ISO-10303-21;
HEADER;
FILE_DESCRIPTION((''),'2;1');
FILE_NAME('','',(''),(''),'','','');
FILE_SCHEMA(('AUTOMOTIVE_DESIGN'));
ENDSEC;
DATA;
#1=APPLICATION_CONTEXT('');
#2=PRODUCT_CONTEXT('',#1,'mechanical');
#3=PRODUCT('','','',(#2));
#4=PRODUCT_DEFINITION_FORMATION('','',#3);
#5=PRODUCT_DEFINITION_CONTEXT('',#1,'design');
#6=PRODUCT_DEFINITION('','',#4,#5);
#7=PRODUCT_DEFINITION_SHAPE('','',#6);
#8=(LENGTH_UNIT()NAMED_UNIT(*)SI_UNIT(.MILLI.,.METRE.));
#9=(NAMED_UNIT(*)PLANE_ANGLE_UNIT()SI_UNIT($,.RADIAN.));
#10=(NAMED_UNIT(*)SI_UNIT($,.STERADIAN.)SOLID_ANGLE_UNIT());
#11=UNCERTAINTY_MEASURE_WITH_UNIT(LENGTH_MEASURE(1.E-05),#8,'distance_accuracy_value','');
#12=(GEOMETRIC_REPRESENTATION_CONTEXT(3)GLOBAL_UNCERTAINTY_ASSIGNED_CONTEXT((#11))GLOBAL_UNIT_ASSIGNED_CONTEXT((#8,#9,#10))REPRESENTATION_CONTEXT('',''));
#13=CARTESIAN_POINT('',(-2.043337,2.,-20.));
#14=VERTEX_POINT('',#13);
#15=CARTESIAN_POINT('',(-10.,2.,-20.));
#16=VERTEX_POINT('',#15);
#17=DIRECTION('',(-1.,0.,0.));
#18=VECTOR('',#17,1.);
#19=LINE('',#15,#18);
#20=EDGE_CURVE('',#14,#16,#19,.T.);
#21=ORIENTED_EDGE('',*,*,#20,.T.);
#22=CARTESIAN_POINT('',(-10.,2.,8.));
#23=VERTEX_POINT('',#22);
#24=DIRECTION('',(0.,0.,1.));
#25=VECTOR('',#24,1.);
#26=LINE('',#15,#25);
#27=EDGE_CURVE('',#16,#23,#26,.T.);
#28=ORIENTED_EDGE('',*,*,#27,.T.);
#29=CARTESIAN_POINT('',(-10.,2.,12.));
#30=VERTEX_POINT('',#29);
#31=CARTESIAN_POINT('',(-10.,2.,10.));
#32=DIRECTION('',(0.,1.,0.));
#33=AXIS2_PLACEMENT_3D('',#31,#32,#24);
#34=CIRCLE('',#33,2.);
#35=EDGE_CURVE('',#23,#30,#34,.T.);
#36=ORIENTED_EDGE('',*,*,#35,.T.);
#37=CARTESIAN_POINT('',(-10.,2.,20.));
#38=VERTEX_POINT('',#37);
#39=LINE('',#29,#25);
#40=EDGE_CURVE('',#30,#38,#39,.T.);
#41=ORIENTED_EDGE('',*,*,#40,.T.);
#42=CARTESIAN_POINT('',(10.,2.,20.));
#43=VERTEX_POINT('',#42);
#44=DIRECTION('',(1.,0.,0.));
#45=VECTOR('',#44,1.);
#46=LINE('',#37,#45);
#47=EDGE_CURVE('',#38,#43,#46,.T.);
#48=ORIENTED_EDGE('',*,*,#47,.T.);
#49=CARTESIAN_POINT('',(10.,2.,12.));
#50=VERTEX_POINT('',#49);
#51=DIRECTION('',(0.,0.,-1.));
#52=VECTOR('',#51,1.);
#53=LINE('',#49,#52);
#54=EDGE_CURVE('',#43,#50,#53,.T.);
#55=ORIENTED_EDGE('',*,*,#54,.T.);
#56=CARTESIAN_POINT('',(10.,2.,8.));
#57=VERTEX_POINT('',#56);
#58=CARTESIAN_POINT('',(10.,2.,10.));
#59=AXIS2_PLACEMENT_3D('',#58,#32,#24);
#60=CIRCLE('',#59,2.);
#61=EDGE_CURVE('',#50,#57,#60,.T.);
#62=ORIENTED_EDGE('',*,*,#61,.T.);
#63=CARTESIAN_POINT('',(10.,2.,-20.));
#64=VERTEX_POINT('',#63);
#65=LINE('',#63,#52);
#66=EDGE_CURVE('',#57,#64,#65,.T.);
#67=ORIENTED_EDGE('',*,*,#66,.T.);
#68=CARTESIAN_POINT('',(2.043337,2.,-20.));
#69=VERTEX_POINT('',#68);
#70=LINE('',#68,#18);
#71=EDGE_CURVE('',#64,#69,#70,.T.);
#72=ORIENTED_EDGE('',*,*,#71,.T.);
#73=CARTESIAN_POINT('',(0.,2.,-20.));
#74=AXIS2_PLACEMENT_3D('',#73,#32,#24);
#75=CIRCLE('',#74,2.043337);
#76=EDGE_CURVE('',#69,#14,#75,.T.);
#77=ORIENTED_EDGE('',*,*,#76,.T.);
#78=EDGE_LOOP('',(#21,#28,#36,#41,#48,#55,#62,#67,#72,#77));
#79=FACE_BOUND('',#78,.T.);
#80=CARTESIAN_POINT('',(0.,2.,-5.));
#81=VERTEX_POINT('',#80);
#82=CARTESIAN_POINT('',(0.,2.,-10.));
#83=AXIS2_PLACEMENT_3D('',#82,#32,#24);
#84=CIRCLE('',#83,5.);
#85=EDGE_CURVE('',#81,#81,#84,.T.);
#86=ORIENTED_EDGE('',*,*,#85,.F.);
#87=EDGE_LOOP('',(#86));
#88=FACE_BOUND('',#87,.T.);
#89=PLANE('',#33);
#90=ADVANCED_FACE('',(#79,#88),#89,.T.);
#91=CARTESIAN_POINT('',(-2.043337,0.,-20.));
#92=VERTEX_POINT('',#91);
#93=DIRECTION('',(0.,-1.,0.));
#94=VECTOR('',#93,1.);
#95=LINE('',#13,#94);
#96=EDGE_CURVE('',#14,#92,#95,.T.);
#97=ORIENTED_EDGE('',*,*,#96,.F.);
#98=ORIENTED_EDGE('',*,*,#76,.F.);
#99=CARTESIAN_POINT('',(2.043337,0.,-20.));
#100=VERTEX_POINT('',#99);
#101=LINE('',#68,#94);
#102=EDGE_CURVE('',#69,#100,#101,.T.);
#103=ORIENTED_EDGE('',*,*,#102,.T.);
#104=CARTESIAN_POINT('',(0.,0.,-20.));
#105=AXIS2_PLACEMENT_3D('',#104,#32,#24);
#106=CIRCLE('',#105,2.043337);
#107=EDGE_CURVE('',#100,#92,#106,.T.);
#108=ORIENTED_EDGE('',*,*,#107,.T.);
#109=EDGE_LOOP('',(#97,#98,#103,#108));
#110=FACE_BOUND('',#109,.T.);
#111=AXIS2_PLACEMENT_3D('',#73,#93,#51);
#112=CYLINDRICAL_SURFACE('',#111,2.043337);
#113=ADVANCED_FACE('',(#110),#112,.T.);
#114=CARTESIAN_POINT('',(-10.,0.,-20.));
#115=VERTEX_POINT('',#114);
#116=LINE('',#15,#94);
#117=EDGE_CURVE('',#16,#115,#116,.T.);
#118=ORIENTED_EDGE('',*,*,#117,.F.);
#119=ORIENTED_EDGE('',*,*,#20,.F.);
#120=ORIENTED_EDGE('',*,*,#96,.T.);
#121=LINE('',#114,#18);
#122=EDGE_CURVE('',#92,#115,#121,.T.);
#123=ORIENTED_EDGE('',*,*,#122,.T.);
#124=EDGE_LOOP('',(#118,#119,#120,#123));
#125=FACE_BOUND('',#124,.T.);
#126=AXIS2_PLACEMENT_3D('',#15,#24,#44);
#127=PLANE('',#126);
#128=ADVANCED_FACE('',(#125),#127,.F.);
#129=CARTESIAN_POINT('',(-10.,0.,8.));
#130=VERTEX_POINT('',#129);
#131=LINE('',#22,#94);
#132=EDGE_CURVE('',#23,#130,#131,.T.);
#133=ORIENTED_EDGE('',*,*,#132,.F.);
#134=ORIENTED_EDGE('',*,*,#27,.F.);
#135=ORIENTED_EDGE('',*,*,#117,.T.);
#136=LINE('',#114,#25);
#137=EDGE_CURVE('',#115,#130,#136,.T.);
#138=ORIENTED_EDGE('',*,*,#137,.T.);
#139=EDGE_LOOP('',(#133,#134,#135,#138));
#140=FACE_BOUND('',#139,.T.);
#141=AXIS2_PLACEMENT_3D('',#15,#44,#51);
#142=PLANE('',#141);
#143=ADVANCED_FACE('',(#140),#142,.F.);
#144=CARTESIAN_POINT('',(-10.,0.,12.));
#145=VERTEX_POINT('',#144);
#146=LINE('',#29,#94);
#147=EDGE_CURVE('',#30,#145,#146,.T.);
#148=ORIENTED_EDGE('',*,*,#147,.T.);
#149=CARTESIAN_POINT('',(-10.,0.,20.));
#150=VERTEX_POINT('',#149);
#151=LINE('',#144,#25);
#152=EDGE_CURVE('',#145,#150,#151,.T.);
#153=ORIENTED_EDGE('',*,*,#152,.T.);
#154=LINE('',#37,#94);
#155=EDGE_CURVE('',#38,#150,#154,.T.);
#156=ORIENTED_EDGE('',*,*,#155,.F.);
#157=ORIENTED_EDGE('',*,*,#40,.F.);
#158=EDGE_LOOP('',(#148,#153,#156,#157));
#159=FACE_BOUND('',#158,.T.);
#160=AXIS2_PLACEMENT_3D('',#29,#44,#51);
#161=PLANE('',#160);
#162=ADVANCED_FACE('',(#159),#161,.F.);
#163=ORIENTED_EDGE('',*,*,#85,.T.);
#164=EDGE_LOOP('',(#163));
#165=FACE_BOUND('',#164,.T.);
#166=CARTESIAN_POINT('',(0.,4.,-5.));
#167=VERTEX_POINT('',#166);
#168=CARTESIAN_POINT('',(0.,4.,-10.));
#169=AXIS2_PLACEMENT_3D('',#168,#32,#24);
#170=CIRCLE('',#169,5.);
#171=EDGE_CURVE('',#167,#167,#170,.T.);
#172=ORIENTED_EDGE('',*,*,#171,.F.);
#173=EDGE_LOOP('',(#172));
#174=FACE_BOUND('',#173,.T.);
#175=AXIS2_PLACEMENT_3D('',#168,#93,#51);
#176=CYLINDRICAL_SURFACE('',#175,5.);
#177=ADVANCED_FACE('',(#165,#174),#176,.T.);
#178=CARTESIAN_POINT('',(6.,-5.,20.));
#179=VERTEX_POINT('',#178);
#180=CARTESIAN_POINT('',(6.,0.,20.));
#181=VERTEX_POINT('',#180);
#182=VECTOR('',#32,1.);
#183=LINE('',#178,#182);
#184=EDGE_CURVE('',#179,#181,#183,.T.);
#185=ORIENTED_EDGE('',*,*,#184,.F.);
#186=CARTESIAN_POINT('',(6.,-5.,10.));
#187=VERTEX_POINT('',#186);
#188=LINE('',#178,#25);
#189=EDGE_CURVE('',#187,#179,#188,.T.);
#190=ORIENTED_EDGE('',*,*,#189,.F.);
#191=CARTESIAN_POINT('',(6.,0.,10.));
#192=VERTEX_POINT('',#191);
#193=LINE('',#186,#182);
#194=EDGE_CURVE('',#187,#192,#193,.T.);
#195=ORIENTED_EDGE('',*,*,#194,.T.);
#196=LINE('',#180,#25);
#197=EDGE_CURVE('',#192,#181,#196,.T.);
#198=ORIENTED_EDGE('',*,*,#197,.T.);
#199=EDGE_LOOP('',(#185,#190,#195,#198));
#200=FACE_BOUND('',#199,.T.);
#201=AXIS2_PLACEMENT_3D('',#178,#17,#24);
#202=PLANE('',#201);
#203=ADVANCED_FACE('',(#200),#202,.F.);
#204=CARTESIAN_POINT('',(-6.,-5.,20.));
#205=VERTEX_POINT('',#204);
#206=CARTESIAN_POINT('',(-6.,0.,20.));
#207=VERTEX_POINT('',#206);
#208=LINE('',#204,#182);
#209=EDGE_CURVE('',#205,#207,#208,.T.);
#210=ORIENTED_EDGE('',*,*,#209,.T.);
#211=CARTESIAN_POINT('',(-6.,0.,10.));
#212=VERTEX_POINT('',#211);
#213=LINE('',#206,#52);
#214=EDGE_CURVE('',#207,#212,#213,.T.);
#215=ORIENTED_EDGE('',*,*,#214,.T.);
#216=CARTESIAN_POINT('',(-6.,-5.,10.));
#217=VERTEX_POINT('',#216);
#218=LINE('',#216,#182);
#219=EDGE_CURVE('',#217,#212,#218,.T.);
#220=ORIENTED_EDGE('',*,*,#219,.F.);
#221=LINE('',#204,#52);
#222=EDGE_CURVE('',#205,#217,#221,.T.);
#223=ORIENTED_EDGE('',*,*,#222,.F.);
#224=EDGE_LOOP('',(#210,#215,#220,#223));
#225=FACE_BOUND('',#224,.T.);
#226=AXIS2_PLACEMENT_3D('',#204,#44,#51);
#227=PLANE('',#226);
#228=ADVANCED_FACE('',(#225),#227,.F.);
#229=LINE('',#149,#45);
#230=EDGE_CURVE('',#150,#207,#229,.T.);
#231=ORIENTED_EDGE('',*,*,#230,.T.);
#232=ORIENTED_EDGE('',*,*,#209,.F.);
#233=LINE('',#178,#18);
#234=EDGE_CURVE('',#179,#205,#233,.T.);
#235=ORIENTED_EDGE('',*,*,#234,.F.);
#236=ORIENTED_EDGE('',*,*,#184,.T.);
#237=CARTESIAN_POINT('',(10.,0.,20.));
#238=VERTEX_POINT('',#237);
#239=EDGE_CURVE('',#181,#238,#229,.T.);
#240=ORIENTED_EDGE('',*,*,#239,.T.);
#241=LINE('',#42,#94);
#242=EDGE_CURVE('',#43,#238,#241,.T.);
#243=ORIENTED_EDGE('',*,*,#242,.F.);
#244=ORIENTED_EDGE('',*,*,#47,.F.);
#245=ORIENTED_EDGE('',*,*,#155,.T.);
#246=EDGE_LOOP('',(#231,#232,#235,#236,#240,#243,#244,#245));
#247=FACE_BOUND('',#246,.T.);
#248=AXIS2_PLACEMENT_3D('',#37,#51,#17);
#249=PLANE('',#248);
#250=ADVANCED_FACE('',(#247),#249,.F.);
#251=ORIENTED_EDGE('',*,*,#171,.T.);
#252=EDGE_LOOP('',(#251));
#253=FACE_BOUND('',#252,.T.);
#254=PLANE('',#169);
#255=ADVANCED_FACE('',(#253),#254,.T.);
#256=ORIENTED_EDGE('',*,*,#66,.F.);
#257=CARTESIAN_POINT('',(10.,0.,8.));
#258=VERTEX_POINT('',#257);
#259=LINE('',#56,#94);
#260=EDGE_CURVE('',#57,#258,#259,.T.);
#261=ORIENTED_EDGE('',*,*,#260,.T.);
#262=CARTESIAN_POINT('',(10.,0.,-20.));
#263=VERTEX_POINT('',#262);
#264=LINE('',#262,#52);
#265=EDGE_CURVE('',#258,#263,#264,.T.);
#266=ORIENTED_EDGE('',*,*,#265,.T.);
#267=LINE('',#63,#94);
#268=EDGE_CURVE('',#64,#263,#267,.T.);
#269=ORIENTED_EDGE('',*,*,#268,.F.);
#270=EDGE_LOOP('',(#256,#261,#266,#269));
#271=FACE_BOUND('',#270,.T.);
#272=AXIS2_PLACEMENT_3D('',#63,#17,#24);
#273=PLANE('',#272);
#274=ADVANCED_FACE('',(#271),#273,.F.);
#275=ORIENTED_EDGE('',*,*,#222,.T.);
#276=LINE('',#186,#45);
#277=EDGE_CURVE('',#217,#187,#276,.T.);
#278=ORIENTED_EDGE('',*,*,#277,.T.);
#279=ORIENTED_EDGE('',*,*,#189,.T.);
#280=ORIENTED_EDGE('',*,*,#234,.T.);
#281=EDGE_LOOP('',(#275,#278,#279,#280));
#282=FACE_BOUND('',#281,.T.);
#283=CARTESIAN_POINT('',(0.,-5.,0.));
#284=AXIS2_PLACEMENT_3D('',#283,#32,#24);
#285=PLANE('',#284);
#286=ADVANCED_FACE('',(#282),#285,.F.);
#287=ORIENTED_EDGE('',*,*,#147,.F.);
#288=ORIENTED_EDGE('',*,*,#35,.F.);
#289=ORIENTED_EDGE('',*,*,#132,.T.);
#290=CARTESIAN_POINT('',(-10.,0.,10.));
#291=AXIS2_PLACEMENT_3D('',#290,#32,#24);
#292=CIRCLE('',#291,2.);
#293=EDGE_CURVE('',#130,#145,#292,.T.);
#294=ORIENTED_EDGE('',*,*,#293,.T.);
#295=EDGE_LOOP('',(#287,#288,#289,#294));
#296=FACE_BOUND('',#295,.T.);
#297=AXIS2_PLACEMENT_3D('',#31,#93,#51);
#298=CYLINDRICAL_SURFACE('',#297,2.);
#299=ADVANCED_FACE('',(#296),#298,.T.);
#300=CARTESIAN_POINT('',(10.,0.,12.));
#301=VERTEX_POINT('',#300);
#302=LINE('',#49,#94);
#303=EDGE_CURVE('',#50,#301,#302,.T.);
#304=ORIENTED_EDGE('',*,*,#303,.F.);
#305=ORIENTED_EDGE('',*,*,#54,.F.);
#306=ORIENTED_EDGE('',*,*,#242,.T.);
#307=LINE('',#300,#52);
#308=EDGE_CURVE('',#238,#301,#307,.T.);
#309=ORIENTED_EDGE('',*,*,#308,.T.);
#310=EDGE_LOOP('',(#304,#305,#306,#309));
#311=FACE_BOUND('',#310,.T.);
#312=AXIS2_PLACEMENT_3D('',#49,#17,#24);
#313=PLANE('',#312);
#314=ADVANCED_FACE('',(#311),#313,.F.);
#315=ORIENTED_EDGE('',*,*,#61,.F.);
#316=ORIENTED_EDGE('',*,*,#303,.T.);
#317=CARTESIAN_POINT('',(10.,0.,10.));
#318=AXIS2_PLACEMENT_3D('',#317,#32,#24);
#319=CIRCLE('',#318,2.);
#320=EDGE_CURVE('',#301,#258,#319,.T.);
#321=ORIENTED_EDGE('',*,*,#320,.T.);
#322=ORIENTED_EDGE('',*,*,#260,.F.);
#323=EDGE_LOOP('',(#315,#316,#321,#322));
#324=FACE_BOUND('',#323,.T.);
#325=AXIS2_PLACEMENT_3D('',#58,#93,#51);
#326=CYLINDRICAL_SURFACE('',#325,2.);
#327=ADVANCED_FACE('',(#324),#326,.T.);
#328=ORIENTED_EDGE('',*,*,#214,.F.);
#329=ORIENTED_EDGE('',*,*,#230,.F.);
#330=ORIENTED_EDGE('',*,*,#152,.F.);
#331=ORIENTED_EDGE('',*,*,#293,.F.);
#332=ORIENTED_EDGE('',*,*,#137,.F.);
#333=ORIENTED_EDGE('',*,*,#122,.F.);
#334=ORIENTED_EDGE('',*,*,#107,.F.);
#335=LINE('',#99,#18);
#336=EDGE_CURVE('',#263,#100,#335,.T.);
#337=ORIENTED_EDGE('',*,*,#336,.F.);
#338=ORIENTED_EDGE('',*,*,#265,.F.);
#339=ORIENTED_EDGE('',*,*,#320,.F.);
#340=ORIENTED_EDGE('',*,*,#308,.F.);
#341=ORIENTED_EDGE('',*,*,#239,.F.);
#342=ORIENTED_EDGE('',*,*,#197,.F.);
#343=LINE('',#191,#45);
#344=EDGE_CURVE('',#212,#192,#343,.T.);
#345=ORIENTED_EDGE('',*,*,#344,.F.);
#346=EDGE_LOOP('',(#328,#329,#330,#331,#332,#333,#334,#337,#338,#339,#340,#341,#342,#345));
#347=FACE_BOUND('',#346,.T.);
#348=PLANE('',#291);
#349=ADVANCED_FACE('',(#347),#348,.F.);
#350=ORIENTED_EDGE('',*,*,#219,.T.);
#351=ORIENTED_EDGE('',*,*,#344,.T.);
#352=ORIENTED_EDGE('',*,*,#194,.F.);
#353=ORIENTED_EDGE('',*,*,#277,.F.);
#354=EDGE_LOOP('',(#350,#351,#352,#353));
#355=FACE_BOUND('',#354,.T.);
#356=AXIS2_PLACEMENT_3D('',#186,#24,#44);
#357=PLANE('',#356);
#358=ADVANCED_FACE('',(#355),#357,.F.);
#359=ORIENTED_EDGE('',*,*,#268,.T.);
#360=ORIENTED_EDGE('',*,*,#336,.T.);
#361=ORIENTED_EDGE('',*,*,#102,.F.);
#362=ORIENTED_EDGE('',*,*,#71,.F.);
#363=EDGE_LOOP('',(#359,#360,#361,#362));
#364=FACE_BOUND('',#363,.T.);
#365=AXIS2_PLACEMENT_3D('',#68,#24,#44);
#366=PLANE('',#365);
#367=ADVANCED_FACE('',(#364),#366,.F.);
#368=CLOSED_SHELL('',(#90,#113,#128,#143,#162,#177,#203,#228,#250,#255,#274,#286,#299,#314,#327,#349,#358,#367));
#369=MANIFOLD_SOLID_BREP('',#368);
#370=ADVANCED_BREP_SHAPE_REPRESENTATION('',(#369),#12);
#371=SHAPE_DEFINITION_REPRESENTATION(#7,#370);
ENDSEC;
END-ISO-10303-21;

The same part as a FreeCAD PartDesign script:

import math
import FreeCAD as App
import Part
import Sketcher

V = App.Vector
Q = App.Units.Quantity


def add_polygon(sketch, points):
    """Adds a closed chain of lines whose ends are joined by coincident constraints."""
    first, n = sketch.GeometryCount, len(points)
    for a, b in zip(points, points[1:] + points[:1]):
        sketch.addGeometry(Part.LineSegment(App.Vector(*a, 0), App.Vector(*b, 0)), False)
    for i in range(n):
        sketch.addConstraint(Sketcher.Constraint("Coincident", first + i, 2, first + (i + 1) % n, 1))

doc = App.newDocument("Part")
body = doc.addObject("PartDesign::Body", "Body")

# Sketch on XZ plane
sketch1 = body.newObject("Sketcher::SketchObject", "Sketch")
sketch1.AttachmentSupport = (doc.getObject("XZ_Plane"), [""])
sketch1.MapMode = "FlatFace"
sketch1.addGeometry([
    Part.LineSegment(V(10, -20, 0), V(2, -20, 0)),  # 0
    Part.ArcOfCircle(Part.Circle(V(0, -20, 0), V(0, 0, 1), 2), math.radians(180), math.radians(360)),  # 1
    Part.LineSegment(V(-2, -20, 0), V(-10, -20, 0)),  # 2
    Part.LineSegment(V(-10, -20, 0), V(-10, 8, 0)),  # 3
    Part.ArcOfCircle(Part.Circle(V(-10, 10, 0), V(0, 0, 1), 2), math.radians(90), math.radians(270)),  # 4
    Part.LineSegment(V(-10, 12, 0), V(-10, 20, 0)),  # 5
    Part.LineSegment(V(-10, 20, 0), V(10, 20, 0)),  # 6
    Part.LineSegment(V(10, 20, 0), V(10, 12, 0)),  # 7
    Part.ArcOfCircle(Part.Circle(V(10, 10, 0), V(0, 0, 1), 2), math.radians(-90), math.radians(90)),  # 8
    Part.LineSegment(V(10, 8, 0), V(10, -20, 0)),  # 9
], False)
sketch1.addConstraint([
    Sketcher.Constraint("Coincident", 0, 2, 1, 2),
    Sketcher.Constraint("Coincident", 1, 1, 2, 1),
    Sketcher.Constraint("Coincident", 2, 2, 3, 1),
    Sketcher.Constraint("Coincident", 3, 2, 4, 2),
    Sketcher.Constraint("Coincident", 4, 1, 5, 1),
    Sketcher.Constraint("Coincident", 5, 2, 6, 1),
    Sketcher.Constraint("Coincident", 6, 2, 7, 1),
    Sketcher.Constraint("Coincident", 7, 2, 8, 2),
    Sketcher.Constraint("Coincident", 8, 1, 9, 1),
    Sketcher.Constraint("Coincident", 9, 2, 0, 1),
    Sketcher.Constraint("Horizontal", 0),
    Sketcher.Constraint("Horizontal", 2),
    Sketcher.Constraint("Vertical", 3),
    Sketcher.Constraint("Vertical", 5),
    Sketcher.Constraint("Horizontal", 6),
    Sketcher.Constraint("Vertical", 7),
    Sketcher.Constraint("Vertical", 9),
    Sketcher.Constraint("Equal", 4, 8),
    Sketcher.Constraint("Symmetric", 2, 2, 6, 2, -1, 1),
    Sketcher.Constraint("Symmetric", 5, 2, 9, 2, -1, 1),
    Sketcher.Constraint("Symmetric", 4, 3, 8, 3, -2),
    Sketcher.Constraint("PointOnObject", 1, 3, -2),
    Sketcher.Constraint("Horizontal", 1, 3, 0, 2),
    Sketcher.Constraint("Vertical", 4, 3, 2, 2),
    Sketcher.Constraint("Vertical", 3, 2, 4, 1),
    Sketcher.Constraint("Radius", 4, Q("2 mm")),
    Sketcher.Constraint("DistanceX", 6, 1, 6, 2, Q("20 mm")),
    Sketcher.Constraint("DistanceY", 3, 1, 3, 2, Q("28 mm")),
    Sketcher.Constraint("DistanceY", 5, 1, 5, 2, Q("8 mm")),
    Sketcher.Constraint("Radius", 1, Q("2.043337 mm")),
])
pad1 = body.newObject("PartDesign::Pad", "Pad")
pad1.Profile = sketch1
pad1.Length = 2
pad1.Reversed = True

# Sketch on XZ plane
sketch2 = body.newObject("Sketcher::SketchObject", "Sketch001")
sketch2.AttachmentSupport = (doc.getObject("XZ_Plane"), [""])
sketch2.MapMode = "FlatFace"
sketch2.AttachmentOffset = App.Placement(V(0, 0, -2), App.Rotation())
sketch2.addGeometry(Part.Circle(V(0, -10, 0), V(0, 0, 1), 5), False)
sketch2.addConstraint([
    Sketcher.Constraint("PointOnObject", 0, 3, -2),
    Sketcher.Constraint("Diameter", 0, Q("10 mm")),
    Sketcher.Constraint("DistanceY", 0, 3, -1, 1, Q("10 mm")),
])
pad2 = body.newObject("PartDesign::Pad", "Pad001")
pad2.Profile = sketch2
pad2.Length = 2
pad2.Reversed = True

# Sketch on XZ plane
sketch3 = body.newObject("Sketcher::SketchObject", "Sketch002")
sketch3.AttachmentSupport = (doc.getObject("XZ_Plane"), [""])
sketch3.MapMode = "FlatFace"
add_polygon(sketch3, [(-6, 20), (-6, 10), (6, 10), (6, 20)])  # lines 0-3
sketch3.addConstraint([
    Sketcher.Constraint("Vertical", 0),
    Sketcher.Constraint("Horizontal", 1),
    Sketcher.Constraint("Vertical", 2),
    Sketcher.Constraint("Horizontal", 3),
    Sketcher.Constraint("DistanceX", 1, 1, 1, 2, Q("12 mm")),
    Sketcher.Constraint("DistanceY", 0, 2, 0, 1, Q("10 mm")),
    Sketcher.Constraint("DistanceX", 0, 2, -1, 1, Q("6 mm")),
    Sketcher.Constraint("DistanceY", -1, 1, 0, 2, Q("10 mm")),
])
pad3 = body.newObject("PartDesign::Pad", "Pad002")
pad3.Profile = sketch3
pad3.Length = 5

doc.recompute()
